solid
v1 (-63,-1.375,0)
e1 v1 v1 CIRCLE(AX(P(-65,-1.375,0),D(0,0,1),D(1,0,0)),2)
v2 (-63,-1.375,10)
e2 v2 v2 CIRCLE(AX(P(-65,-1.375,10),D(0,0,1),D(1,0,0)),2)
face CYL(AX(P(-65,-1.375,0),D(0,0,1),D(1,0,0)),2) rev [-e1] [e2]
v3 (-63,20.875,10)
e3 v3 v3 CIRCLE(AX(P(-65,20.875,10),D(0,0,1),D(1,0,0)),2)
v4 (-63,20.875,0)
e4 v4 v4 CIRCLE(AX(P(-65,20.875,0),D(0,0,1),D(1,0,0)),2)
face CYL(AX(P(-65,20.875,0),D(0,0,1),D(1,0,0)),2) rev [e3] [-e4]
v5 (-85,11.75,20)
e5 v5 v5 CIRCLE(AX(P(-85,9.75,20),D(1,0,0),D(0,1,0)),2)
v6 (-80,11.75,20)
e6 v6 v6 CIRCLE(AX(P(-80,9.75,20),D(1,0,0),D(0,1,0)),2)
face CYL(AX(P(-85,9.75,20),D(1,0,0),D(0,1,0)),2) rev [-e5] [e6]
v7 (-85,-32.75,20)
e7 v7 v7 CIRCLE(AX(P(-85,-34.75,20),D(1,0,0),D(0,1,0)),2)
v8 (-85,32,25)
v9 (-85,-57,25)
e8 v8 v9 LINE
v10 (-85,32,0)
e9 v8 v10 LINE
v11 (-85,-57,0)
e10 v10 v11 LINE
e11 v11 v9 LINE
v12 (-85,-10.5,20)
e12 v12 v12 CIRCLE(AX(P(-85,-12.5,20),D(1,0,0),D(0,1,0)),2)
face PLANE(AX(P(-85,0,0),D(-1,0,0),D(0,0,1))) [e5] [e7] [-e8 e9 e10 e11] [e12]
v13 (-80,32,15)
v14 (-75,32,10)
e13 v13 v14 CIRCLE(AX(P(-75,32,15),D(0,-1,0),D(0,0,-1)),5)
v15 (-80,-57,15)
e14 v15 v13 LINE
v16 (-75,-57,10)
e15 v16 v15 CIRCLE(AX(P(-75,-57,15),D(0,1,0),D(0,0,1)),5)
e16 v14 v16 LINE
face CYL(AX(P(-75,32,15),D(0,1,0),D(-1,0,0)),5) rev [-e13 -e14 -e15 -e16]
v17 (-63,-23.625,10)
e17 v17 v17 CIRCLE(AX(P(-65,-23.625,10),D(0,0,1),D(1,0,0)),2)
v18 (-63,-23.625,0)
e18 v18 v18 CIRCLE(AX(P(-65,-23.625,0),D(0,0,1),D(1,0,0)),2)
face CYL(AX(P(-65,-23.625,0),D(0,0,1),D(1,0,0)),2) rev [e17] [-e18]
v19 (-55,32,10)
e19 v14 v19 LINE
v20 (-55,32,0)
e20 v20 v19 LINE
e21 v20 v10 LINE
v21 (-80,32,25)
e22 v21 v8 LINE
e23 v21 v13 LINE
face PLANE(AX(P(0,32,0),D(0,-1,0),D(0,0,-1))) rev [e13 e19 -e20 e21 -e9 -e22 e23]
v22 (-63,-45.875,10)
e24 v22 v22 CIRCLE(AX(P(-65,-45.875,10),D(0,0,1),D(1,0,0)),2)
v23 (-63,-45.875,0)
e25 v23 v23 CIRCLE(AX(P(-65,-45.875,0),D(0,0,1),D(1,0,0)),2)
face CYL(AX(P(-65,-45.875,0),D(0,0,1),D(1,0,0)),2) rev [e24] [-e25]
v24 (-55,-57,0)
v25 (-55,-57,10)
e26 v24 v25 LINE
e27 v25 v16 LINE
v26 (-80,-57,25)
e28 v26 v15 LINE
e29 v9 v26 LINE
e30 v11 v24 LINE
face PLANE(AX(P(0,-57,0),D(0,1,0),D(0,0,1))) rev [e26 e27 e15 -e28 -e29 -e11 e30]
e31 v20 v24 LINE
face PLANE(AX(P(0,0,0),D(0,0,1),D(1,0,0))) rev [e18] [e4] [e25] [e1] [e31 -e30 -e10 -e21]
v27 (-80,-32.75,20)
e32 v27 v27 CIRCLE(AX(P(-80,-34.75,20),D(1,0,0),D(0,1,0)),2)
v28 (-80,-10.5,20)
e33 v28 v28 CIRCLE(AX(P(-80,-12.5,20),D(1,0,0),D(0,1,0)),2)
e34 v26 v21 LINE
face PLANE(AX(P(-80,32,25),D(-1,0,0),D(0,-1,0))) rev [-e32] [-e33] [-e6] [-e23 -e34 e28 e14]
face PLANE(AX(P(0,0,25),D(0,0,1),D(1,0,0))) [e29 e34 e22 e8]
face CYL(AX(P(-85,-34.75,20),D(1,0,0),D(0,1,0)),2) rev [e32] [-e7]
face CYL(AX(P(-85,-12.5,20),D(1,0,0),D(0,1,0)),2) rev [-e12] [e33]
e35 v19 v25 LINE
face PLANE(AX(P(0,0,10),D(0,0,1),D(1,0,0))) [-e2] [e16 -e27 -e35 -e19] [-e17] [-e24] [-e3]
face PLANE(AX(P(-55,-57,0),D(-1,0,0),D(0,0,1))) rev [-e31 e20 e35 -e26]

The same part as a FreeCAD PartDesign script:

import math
import FreeCAD as App
import Part
import Sketcher

V = App.Vector
Q = App.Units.Quantity


def edges_at(feature, points):
    """Names of the edges that pass closest to the given points."""
    edges = feature.Shape.Edges
    near = lambda p: min(range(len(edges)), key=lambda i: edges[i].distToShape(Part.Vertex(*p))[0])
    return sorted({f"Edge{near(p) + 1}" for p in points})


def add_polygon(sketch, points):
    """Adds a closed chain of lines whose ends are joined by coincident constraints."""
    first, n = sketch.GeometryCount, len(points)
    for a, b in zip(points, points[1:] + points[:1]):
        sketch.addGeometry(Part.LineSegment(App.Vector(*a, 0), App.Vector(*b, 0)), False)
    for i in range(n):
        sketch.addConstraint(Sketcher.Constraint("Coincident", first + i, 2, first + (i + 1) % n, 1))

doc = App.newDocument("Part")
body = doc.addObject("PartDesign::Body", "Body")

sketch1 = doc.addObject("Sketcher::SketchObject", "Sketch")
body.addObject(sketch1)
sketch1.AttachmentSupport = (doc.XY_Plane, [""])
sketch1.MapMode = "FlatFace"
sketch1.addGeometry([
    Part.LineSegment(V(45, -25, 0), V(50, -25, 0)),
    Part.LineSegment(V(50, -25, 0), V(50, 25, 0)),
    Part.LineSegment(V(50, 25, 0), V(45, 25, 0)),
    Part.ArcOfCircle(Part.Circle(V(0, 76.1, 0), V(0, 0, 1), 68.1), math.radians(-131), math.radians(-49)),
    Part.LineSegment(V(-45, 25, 0), V(-50, 25, 0)),
    Part.LineSegment(V(-50, 25, 0), V(-50, -25, 0)),
    Part.LineSegment(V(-50, -25, 0), V(-45, -25, 0)),
    Part.ArcOfCircle(Part.Circle(V(0, -76.1, 0), V(0, 0, 1), 68.1), math.radians(49), math.radians(131)),
], False)
sketch1.addConstraint([
    Sketcher.Constraint("Coincident", 0, 2, 1, 1),
    Sketcher.Constraint("Coincident", 1, 2, 2, 1),
    Sketcher.Constraint("Coincident", 2, 2, 3, 2),
    Sketcher.Constraint("Coincident", 3, 1, 4, 1),
    Sketcher.Constraint("Coincident", 4, 2, 5, 1),
    Sketcher.Constraint("Coincident", 5, 2, 6, 1),
    Sketcher.Constraint("Coincident", 6, 2, 7, 2),
    Sketcher.Constraint("Coincident", 7, 1, 0, 1),
    Sketcher.Constraint("Horizontal", 0),
    Sketcher.Constraint("Vertical", 1),
    Sketcher.Constraint("Horizontal", 2),
    Sketcher.Constraint("Horizontal", 4),
    Sketcher.Constraint("Vertical", 5),
    Sketcher.Constraint("Horizontal", 6),
    Sketcher.Constraint("Symmetric", 0, 2, 4, 2, -1, 1),
    Sketcher.Constraint("Symmetric", 2, 2, 3, 1, -2),
    Sketcher.Constraint("Symmetric", 6, 2, 7, 1, -2),
    Sketcher.Constraint("DistanceX", 2, 2, 2, 1, Q("5 mm")),
    Sketcher.Constraint("DistanceY", 1, 1, 1, 2, Q("50 mm")),
    Sketcher.Constraint("DistanceX", -1, 1, 0, 2, Q("50 mm")),
    Sketcher.Constraint("Radius", 3, Q("68.058824 mm")),
    Sketcher.Constraint("Radius", 7, Q("68.107743 mm")),
    Sketcher.Constraint("DistanceX", 0, 1, 0, 2, Q("4.981523 mm")),
])
pad1 = doc.addObject("PartDesign::Pad", "Pad")
body.addObject(pad1)
pad1.Profile = sketch1
pad1.Length = 10

sketch2 = doc.addObject("Sketcher::SketchObject", "Sketch001")
body.addObject(sketch2)
sketch2.AttachmentSupport = (doc.XZ_Plane, [""])
sketch2.MapMode = "FlatFace"
sketch2.AttachmentOffset = App.Placement(V(0, 0, -25), App.Rotation())
sketch2.addGeometry([
    Part.Circle(V(-48, 5, 0), V(0, 0, 1), 1.5),
    Part.Circle(V(48, 5, 0), V(0, 0, 1), 1.5),
], False)
sketch2.addConstraint([
    Sketcher.Constraint("Equal", 0, 1),
    Sketcher.Constraint("Symmetric", 0, 3, 1, 3, -2),
    Sketcher.Constraint("Diameter", 0, Q("3 mm")),
    Sketcher.Constraint("DistanceX", 0, 3, -1, 1, Q("48 mm")),
    Sketcher.Constraint("DistanceY", -1, 1, 0, 3, Q("5 mm")),
])
pocket1 = doc.addObject("PartDesign::Pocket", "Pocket")
body.addObject(pocket1)
pocket1.Profile = sketch2
pocket1.Type = "ThroughAll"
pocket1.Midplane = True

sketch3 = doc.addObject("Sketcher::SketchObject", "Sketch002")
body.addObject(sketch3)
sketch3.AttachmentSupport = (doc.YZ_Plane, [""])
sketch3.MapMode = "FlatFace"
sketch3.AttachmentOffset = App.Placement(V(0, 0, 50), App.Rotation())
add_polygon(sketch3, [(25, 10), (-25, 10), (-25, 0), (25, 0)])
sketch3.addConstraint([
    Sketcher.Constraint("Horizontal", 0),
    Sketcher.Constraint("Vertical", 1),
    Sketcher.Constraint("Horizontal", 2),
    Sketcher.Constraint("Vertical", 3),
    Sketcher.Constraint("Symmetric", 1, 2, 2, 2, -1, 1),
    Sketcher.Constraint("DistanceX", 0, 2, 0, 1, Q("50 mm")),
    Sketcher.Constraint("DistanceY", 1, 2, 1, 1, Q("10 mm")),
])
pad2 = doc.addObject("PartDesign::Pad", "Pad001")
body.addObject(pad2)
pad2.Profile = sketch3
pad2.Length = 5

sketch4 = doc.addObject("Sketcher::SketchObject", "Sketch003")
body.addObject(sketch4)
sketch4.AttachmentSupport = (doc.YZ_Plane, [""])
sketch4.MapMode = "FlatFace"
sketch4.AttachmentOffset = App.Placement(V(0, 0, -50), App.Rotation())
add_polygon(sketch4, [(25, 0), (-25, 0), (-25, 10), (25, 10)])
sketch4.addConstraint([
    Sketcher.Constraint("Horizontal", 0),
    Sketcher.Constraint("Vertical", 1),
    Sketcher.Constraint("Horizontal", 2),
    Sketcher.Constraint("Vertical", 3),
    Sketcher.Constraint("Symmetric", 0, 2, 3, 2, -1, 1),
    Sketcher.Constraint("DistanceX", 0, 2, 0, 1, Q("50 mm")),
    Sketcher.Constraint("DistanceY", 1, 1, 1, 2, Q("10 mm")),
])
pad3 = doc.addObject("PartDesign::Pad", "Pad002")
body.addObject(pad3)
pad3.Profile = sketch4
pad3.Length = 5
pad3.Reversed = True

sketch5 = doc.addObject("Sketcher::SketchObject", "Sketch004")
body.addObject(sketch5)
sketch5.AttachmentSupport = (doc.XZ_Plane, [""])
sketch5.MapMode = "FlatFace"
sketch5.AttachmentOffset = App.Placement(V(0, 0, -25), App.Rotation())
add_polygon(sketch5, [(50, 0), (50, 7), (45, 7), (45, 10), (55, 10), (55, 0)])
add_polygon(sketch5, [(-50, 7), (-50, 0), (-55, 0), (-55, 10), (-45, 10), (-45, 7)])
sketch5.addConstraint([
    Sketcher.Constraint("Vertical", 0),
    Sketcher.Constraint("Horizontal", 1),
    Sketcher.Constraint("Vertical", 2),
    Sketcher.Constraint("Horizontal", 3),
    Sketcher.Constraint("Vertical", 4),
    Sketcher.Constraint("Horizontal", 5),
    Sketcher.Constraint("Vertical", 6),
    Sketcher.Constraint("Horizontal", 7),
    Sketcher.Constraint("Vertical", 8),
    Sketcher.Constraint("Horizontal", 9),
    Sketcher.Constraint("Vertical", 10),
    Sketcher.Constraint("Horizontal", 11),
    Sketcher.Constraint("Symmetric", 5, 2, 6, 2, -1, 1),
    Sketcher.Constraint("Symmetric", 4, 2, 7, 2, -2),
    Sketcher.Constraint("Symmetric", 2, 2, 9, 2, -2),
    Sketcher.Constraint("Horizontal", 1, 2, 10, 2),
    Sketcher.Constraint("Equal", 1, 5),
    Sketcher.Constraint("Equal", 9, 4),
    Sketcher.Constraint("DistanceX", 1, 2, 1, 1, Q("5 mm")),
    Sketcher.Constraint("DistanceY", 0, 1, 0, 2, Q("7 mm")),
    Sketcher.Constraint("DistanceX", -1, 1, 0, 2, Q("50 mm")),
])
pad4 = doc.addObject("PartDesign::Pad", "Pad003")
body.addObject(pad4)
pad4.Profile = sketch5
pad4.Length = 2
pad4.Reversed = True

sketch6 = doc.addObject("Sketcher::SketchObject", "Sketch005")
body.addObject(sketch6)
sketch6.AttachmentSupport = (doc.XZ_Plane, [""])
sketch6.MapMode = "FlatFace"
sketch6.AttachmentOffset = App.Placement(V(0, 0, -27), App.Rotation())
add_polygon(sketch6, [(45, 0), (45, 10), (55, 10), (55, 0)])
add_polygon(sketch6, [(-55, 0), (-55, 10), (-45, 10), (-45, 0)])
sketch6.addConstraint([
    Sketcher.Constraint("Vertical", 0),
    Sketcher.Constraint("Horizontal", 1),
    Sketcher.Constraint("Vertical", 2),
    Sketcher.Constraint("Horizontal", 3),
    Sketcher.Constraint("Vertical", 4),
    Sketcher.Constraint("Horizontal", 5),
    Sketcher.Constraint("Vertical", 6),
    Sketcher.Constraint("Horizontal", 7),
    Sketcher.Constraint("Symmetric", 3, 2, 6, 2, -1, 1),
    Sketcher.Constraint("Symmetric", 1, 2, 4, 2, -2),
    Sketcher.Constraint("PointOnObject", 2, 2, -1),
    Sketcher.Constraint("Equal", 7, 0),
    Sketcher.Constraint("DistanceX", 1, 1, 1, 2, Q("10 mm")),
    Sketcher.Constraint("DistanceX", -1, 1, 0, 2, Q("45 mm")),
])
pad5 = doc.addObject("PartDesign::Pad", "Pad004")
body.addObject(pad5)
pad5.Profile = sketch6
pad5.Length = 5
pad5.Reversed = True

sketch7 = doc.addObject("Sketcher::SketchObject", "Sketch006")
body.addObject(sketch7)
sketch7.AttachmentSupport = (doc.XZ_Plane, [""])
sketch7.MapMode = "FlatFace"
sketch7.AttachmentOffset = App.Placement(V(0, 0, -32), App.Rotation())
sketch7.addGeometry([
    Part.Circle(V(48, 5, 0), V(0, 0, 1), 1.5),
    Part.Circle(V(-48, 5, 0), V(0, 0, 1), 1.5),
], False)
sketch7.addConstraint([
    Sketcher.Constraint("Equal", 0, 1),
    Sketcher.Constraint("Symmetric", 0, 3, 1, 3, -2),
    Sketcher.Constraint("Diameter", 0, Q("3 mm")),
    Sketcher.Constraint("DistanceX", -1, 1, 0, 3, Q("48 mm")),
    Sketcher.Constraint("DistanceY", -1, 1, 0, 3, Q("5 mm")),
])
pocket2 = doc.addObject("PartDesign::Pocket", "Pocket001")
body.addObject(pocket2)
pocket2.Profile = sketch7
pocket2.Length = 7
pocket2.Reversed = True

sketch8 = doc.addObject("Sketcher::SketchObject", "Sketch007")
body.addObject(sketch8)
sketch8.AttachmentSupport = (doc.XZ_Plane, [""])
sketch8.MapMode = "FlatFace"
sketch8.AttachmentOffset = App.Placement(V(0, 0, 25), App.Rotation())
add_polygon(sketch8, [(50, 7), (50, 0), (55, 0), (55, 10), (45, 10), (45, 7)])
add_polygon(sketch8, [(-50, 0), (-50, 7), (-45, 7), (-45, 10), (-55, 10), (-55, 0)])
sketch8.addConstraint([
    Sketcher.Constraint("Vertical", 0),
    Sketcher.Constraint("Horizontal", 1),
    Sketcher.Constraint("Vertical", 2),
    Sketcher.Constraint("Horizontal", 3),
    Sketcher.Constraint("Vertical", 4),
    Sketcher.Constraint("Horizontal", 5),
    Sketcher.Constraint("Vertical", 6),
    Sketcher.Constraint("Horizontal", 7),
    Sketcher.Constraint("Vertical", 8),
    Sketcher.Constraint("Horizontal", 9),
    Sketcher.Constraint("Vertical", 10),
    Sketcher.Constraint("Horizontal", 11),
    Sketcher.Constraint("Symmetric", 1, 2, 10, 2, -1, 1),
    Sketcher.Constraint("Symmetric", 5, 2, 6, 2, -2),
    Sketcher.Constraint("Symmetric", 3, 2, 8, 2, -2),
    Sketcher.Constraint("PointOnObject", 0, 2, -1),
    Sketcher.Constraint("Equal", 1, 5),
    Sketcher.Constraint("DistanceY", 0, 2, 0, 1, Q("7 mm")),
    Sketcher.Constraint("DistanceY", 2, 1, 2, 2, Q("10 mm")),
    Sketcher.Constraint("DistanceX", -1, 1, 1, 2, Q("55 mm")),
    Sketcher.Constraint("DistanceX", 1, 1, 1, 2, Q("4.990762 mm")),
])
pad6 = doc.addObject("PartDesign::Pad", "Pad005")
body.addObject(pad6)
pad6.Profile = sketch8
pad6.Length = 2

sketch9 = doc.addObject("Sketcher::SketchObject", "Sketch008")
body.addObject(sketch9)
sketch9.AttachmentSupport = (doc.XZ_Plane, [""])
sketch9.MapMode = "FlatFace"
sketch9.AttachmentOffset = App.Placement(V(0, 0, 27), App.Rotation())
add_polygon(sketch9, [(-55, 10), (-55, 0), (-45, 0), (-45, 10)])
add_polygon(sketch9, [(45, 10), (45, 0), (55, 0), (55, 10)])
sketch9.addConstraint([
    Sketcher.Constraint("Vertical", 0),
    Sketcher.Constraint("Horizontal", 1),
    Sketcher.Constraint("Vertical", 2),
    Sketcher.Constraint("Horizontal", 3),
    Sketcher.Constraint("Vertical", 4),
    Sketcher.Constraint("Horizontal", 5),
    Sketcher.Constraint("Vertical", 6),
    Sketcher.Constraint("Horizontal", 7),
    Sketcher.Constraint("Symmetric", 1, 2, 4, 2, -1, 1),
    Sketcher.Constraint("Symmetric", 0, 2, 5, 2, -2),
    Sketcher.Constraint("Horizontal", 3, 2, 6, 2),
    Sketcher.Constraint("DistanceY", 0, 2, 0, 1, Q("10 mm")),
    Sketcher.Constraint("DistanceX", 0, 2, -1, 1, Q("55 mm")),
    Sketcher.Constraint("DistanceX", 1, 1, 1, 2, Q("9.981523 mm")),
])
pad7 = doc.addObject("PartDesign::Pad", "Pad006")
body.addObject(pad7)
pad7.Profile = sketch9
pad7.Length = 30

sketch10 = doc.addObject("Sketcher::SketchObject", "Sketch009")
body.addObject(sketch10)
sketch10.AttachmentSupport = (doc.XZ_Plane, [""])
sketch10.MapMode = "FlatFace"
sketch10.AttachmentOffset = App.Placement(V(0, 0, 25), App.Rotation())
sketch10.addGeometry([
    Part.Circle(V(48, 5, 0), V(0, 0, 1), 1.5),
    Part.Circle(V(-48, 5, 0), V(0, 0, 1), 1.5),
], False)
sketch10.addConstraint([
    Sketcher.Constraint("Equal", 0, 1),
    Sketcher.Constraint("Symmetric", 0, 3, 1, 3, -2),
    Sketcher.Constraint("Diameter", 0, Q("3 mm")),
    Sketcher.Constraint("DistanceX", -1, 1, 0, 3, Q("48 mm")),
    Sketcher.Constraint("DistanceY", -1, 1, 0, 3, Q("5 mm")),
])
pocket3 = doc.addObject("PartDesign::Pocket", "Pocket002")
body.addObject(pocket3)
pocket3.Profile = sketch10
pocket3.Length = 32
pocket3.Reversed = True

sketch11 = doc.addObject("Sketcher::SketchObject", "Sketch010")
body.addObject(sketch11)
sketch11.AttachmentSupport = (doc.YZ_Plane, [""])
sketch11.MapMode = "FlatFace"
sketch11.AttachmentOffset = App.Placement(V(0, 0, -55), App.Rotation())
add_polygon(sketch11, [(32, 0), (-57, 0), (-57, 10), (32, 10)])
sketch11.addConstraint([
    Sketcher.Constraint("Horizontal", 0),
    Sketcher.Constraint("Vertical", 1),
    Sketcher.Constraint("Horizontal", 2),
    Sketcher.Constraint("Vertical", 3),
    Sketcher.Constraint("PointOnObject", 0, 2, -1),
    Sketcher.Constraint("DistanceX", 0, 2, 0, 1, Q("89 mm")),
    Sketcher.Constraint("DistanceY", 1, 1, 1, 2, Q("10 mm")),
    Sketcher.Constraint("DistanceX", 0, 2, -1, 1, Q("57 mm")),
])
pad8 = doc.addObject("PartDesign::Pad", "Pad007")
body.addObject(pad8)
pad8.Profile = sketch11
pad8.Length = 30
pad8.Reversed = True

sketch12 = doc.addObject("Sketcher::SketchObject", "Sketch011")
body.addObject(sketch12)
sketch12.AttachmentSupport = (doc.XY_Plane, [""])
sketch12.MapMode = "FlatFace"
sketch12.AttachmentOffset = App.Placement(V(0, 0, 10), App.Rotation())
add_polygon(sketch12, [(-85, 32), (-85, -57), (-80, -57), (-80, 32)])
sketch12.addConstraint([
    Sketcher.Constraint("Vertical", 0),
    Sketcher.Constraint("Horizontal", 1),
    Sketcher.Constraint("Vertical", 2),
    Sketcher.Constraint("Horizontal", 3),
    Sketcher.Constraint("DistanceX", 1, 1, 1, 2, Q("5 mm")),
    Sketcher.Constraint("DistanceY", 0, 2, 0, 1, Q("89 mm")),
    Sketcher.Constraint("DistanceX", 0, 2, -1, 1, Q("85 mm")),
    Sketcher.Constraint("DistanceY", 0, 2, -1, 1, Q("57 mm")),
])
pad9 = doc.addObject("PartDesign::Pad", "Pad008")
body.addObject(pad9)
pad9.Profile = sketch12
pad9.Length = 15
doc.recompute()

fillet = doc.addObject("PartDesign::Fillet", "Fillet")
body.addObject(fillet)
fillet.Base = (pad9, edges_at(pad9, [(-80, -12.5, 10)]))
fillet.Radius = 5

sketch13 = doc.addObject("Sketcher::SketchObject", "Sketch012")
body.addObject(sketch13)
sketch13.AttachmentSupport = (doc.YZ_Plane, [""])
sketch13.MapMode = "FlatFace"
sketch13.AttachmentOffset = App.Placement(V(0, 0, -80), App.Rotation())
sketch13.addGeometry([
    Part.Circle(V(9.8, 20, 0), V(0, 0, 1), 2),
    Part.Circle(V(-12.5, 20, 0), V(0, 0, 1), 2),
    Part.Circle(V(-34.8, 20, 0), V(0, 0, 1), 2),
], False)
sketch13.addConstraint([
    Sketcher.Constraint("Equal", 0, 1),
    Sketcher.Constraint("Equal", 1, 2),
    Sketcher.Constraint("Horizontal", 0, 3, 1, 3),
    Sketcher.Constraint("Horizontal", 1, 3, 2, 3),
    Sketcher.Constraint("Diameter", 0, Q("4 mm")),
    Sketcher.Constraint("DistanceY", -1, 1, 0, 3, Q("20 mm")),
    Sketcher.Constraint("DistanceX", 1, 3, -1, 1, Q("12.5 mm")),
    Sketcher.Constraint("DistanceX", 2, 3, 0, 3, Q("44.5 mm")),
    Sketcher.Constraint("DistanceX", -1, 1, 0, 3, Q("9.75 mm")),
])
pocket4 = doc.addObject("PartDesign::Pocket", "Pocket003")
body.addObject(pocket4)
pocket4.Profile = sketch13
pocket4.Type = "ThroughAll"

sketch14 = doc.addObject("Sketcher::SketchObject", "Sketch013")
body.addObject(sketch14)
sketch14.AttachmentSupport = (doc.XY_Plane, [""])
sketch14.MapMode = "FlatFace"
sketch14.AttachmentOffset = App.Placement(V(0, 0, 10), App.Rotation())
sketch14.addGeometry([
    Part.Circle(V(-65, 20.9, 0), V(0, 0, 1), 2),
    Part.Circle(V(-65, -1.4, 0), V(0, 0, 1), 2),
    Part.Circle(V(-65, -23.6, 0), V(0, 0, 1), 2),
    Part.Circle(V(-65, -45.9, 0), V(0, 0, 1), 2),
], False)
sketch14.addConstraint([
    Sketcher.Constraint("Equal", 0, 1),
    Sketcher.Constraint("Equal", 1, 2),
    Sketcher.Constraint("Equal", 2, 3),
    Sketcher.Constraint("Vertical", 0, 3, 1, 3),
    Sketcher.Constraint("Vertical", 1, 3, 2, 3),
    Sketcher.Constraint("Vertical", 2, 3, 3, 3),
    Sketcher.Constraint("Diameter", 0, Q("4 mm")),
    Sketcher.Constraint("DistanceX", 0, 3, -1, 1, Q("65 mm")),
    Sketcher.Constraint("DistanceY", 2, 3, 0, 3, Q("44.5 mm")),
    Sketcher.Constraint("DistanceY", 3, 3, 1, 3, Q("44.5 mm")),
    Sketcher.Constraint("DistanceY", 1, 3, 0, 3, Q("22.25 mm")),
    Sketcher.Constraint("DistanceY", -1, 1, 0, 3, Q("20.875 mm")),
])
pocket5 = doc.addObject("PartDesign::Pocket", "Pocket004")
body.addObject(pocket5)
pocket5.Profile = sketch14
pocket5.Length = 10

sketch15 = doc.addObject("Sketcher::SketchObject", "Sketch014")
body.addObject(sketch15)
sketch15.AttachmentSupport = (doc.XY_Plane, [""])
sketch15.MapMode = "FlatFace"
sketch15.AttachmentOffset = App.Placement(V(0, 0, 10), App.Rotation())
add_polygon(sketch15, [(-55, 32), (-55, -57), (55, -57), (55, 32)])
sketch15.addConstraint([
    Sketcher.Constraint("Vertical", 0),
    Sketcher.Constraint("Horizontal", 1),
    Sketcher.Constraint("Vertical", 2),
    Sketcher.Constraint("Horizontal", 3),
    Sketcher.Constraint("DistanceX", 1, 1, 1, 2, Q("110 mm")),
    Sketcher.Constraint("DistanceY", 0, 2, 0, 1, Q("89 mm")),
    Sketcher.Constraint("DistanceX", 0, 2, -1, 1, Q("55 mm")),
    Sketcher.Constraint("DistanceY", 0, 2, -1, 1, Q("57 mm")),
])
pocket6 = doc.addObject("PartDesign::Pocket", "Pocket005")
body.addObject(pocket6)
pocket6.Profile = sketch15
pocket6.Type = "ThroughAll"

doc.recompute()
